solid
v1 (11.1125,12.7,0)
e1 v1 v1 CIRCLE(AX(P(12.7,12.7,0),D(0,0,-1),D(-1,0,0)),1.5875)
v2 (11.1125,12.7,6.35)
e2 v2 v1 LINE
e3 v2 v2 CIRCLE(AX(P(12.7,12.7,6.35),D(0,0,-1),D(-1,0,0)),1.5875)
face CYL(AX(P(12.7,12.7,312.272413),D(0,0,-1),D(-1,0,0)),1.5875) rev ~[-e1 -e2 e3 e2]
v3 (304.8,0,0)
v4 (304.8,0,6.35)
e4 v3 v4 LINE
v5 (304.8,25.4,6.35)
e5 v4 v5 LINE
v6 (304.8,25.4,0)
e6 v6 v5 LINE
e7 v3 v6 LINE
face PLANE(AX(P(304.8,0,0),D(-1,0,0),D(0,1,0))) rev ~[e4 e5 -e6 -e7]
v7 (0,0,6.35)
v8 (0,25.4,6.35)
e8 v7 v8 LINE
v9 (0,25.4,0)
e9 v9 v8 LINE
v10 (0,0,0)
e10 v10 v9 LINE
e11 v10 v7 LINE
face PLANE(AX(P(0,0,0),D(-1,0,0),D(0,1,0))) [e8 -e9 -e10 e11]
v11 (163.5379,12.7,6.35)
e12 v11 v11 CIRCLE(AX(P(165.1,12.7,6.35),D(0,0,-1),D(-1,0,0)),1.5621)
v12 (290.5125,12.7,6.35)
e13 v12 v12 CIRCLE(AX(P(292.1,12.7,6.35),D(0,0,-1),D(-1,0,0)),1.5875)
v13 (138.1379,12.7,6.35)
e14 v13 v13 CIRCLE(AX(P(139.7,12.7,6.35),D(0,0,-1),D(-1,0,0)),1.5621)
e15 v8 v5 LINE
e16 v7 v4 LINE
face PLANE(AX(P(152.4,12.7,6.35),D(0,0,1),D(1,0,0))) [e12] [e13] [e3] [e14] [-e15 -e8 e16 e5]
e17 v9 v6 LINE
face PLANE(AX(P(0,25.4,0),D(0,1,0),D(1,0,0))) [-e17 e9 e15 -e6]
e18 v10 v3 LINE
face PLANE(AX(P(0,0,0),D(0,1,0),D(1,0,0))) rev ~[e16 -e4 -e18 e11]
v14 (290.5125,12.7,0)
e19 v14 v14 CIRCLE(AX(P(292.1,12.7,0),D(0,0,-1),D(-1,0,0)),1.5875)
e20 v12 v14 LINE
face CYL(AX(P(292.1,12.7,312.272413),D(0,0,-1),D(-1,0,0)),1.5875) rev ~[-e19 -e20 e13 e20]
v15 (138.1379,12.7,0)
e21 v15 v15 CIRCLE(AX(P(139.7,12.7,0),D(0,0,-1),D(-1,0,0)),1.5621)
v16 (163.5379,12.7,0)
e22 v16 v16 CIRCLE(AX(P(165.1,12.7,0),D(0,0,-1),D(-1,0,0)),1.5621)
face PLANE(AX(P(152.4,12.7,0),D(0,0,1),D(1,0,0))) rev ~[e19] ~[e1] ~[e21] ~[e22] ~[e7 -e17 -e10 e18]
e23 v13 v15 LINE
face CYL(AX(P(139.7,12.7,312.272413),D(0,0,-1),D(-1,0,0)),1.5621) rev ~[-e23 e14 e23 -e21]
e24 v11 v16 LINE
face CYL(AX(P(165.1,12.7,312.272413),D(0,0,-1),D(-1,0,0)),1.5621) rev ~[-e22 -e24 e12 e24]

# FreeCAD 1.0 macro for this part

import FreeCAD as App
import Part
import Sketcher
Q = App.Units.Quantity

doc = App.newDocument("Part")
body = doc.addObject("PartDesign::Body", "Body")

sketch1 = body.newObject("Sketcher::SketchObject", "Sketch")
sketch1.AttachmentSupport = (doc.getObject("XY_Plane"), [""])
sketch1.MapMode = "FlatFace"
sketch1.addGeometry(Part.LineSegment(App.Vector(0, 25.4, 0), App.Vector(0, 0, 0)), False)
sketch1.addGeometry(Part.LineSegment(App.Vector(0, 0, 0), App.Vector(304.8, 0, 0)), False)
sketch1.addGeometry(Part.LineSegment(App.Vector(304.8, 0, 0), App.Vector(304.8, 25.4, 0)), False)
sketch1.addGeometry(Part.LineSegment(App.Vector(304.8, 25.4, 0), App.Vector(0, 25.4, 0)), False)
sketch1.addConstraint(Sketcher.Constraint("Coincident", 0, 2, 1, 1))
sketch1.addConstraint(Sketcher.Constraint("Coincident", 1, 2, 2, 1))
sketch1.addConstraint(Sketcher.Constraint("Coincident", 2, 2, 3, 1))
sketch1.addConstraint(Sketcher.Constraint("Coincident", 3, 2, 0, 1))
sketch1.addConstraint(Sketcher.Constraint("Vertical", 0))
sketch1.addConstraint(Sketcher.Constraint("Horizontal", 1))
sketch1.addConstraint(Sketcher.Constraint("Vertical", 2))
sketch1.addConstraint(Sketcher.Constraint("Horizontal", 3))
sketch1.addConstraint(Sketcher.Constraint("Coincident", 0, 2, -1, 1))
sketch1.addConstraint(Sketcher.Constraint("DistanceX", 1, 1, 1, 2, Q("12 in")))
sketch1.addConstraint(Sketcher.Constraint("DistanceY", 0, 2, 0, 1, Q("1 in")))
pad1 = body.newObject("PartDesign::Pad", "Pad")
pad1.Profile = sketch1
pad1.Length = Q("0.25 in")

sketch2 = body.newObject("Sketcher::SketchObject", "Sketch001")
sketch2.AttachmentSupport = (doc.getObject("XY_Plane"), [""])
sketch2.MapMode = "FlatFace"
sketch2.AttachmentOffset = App.Placement(App.Vector(0, 0, 0.25 * 25.4), App.Rotation())
sketch2.addGeometry(Part.Circle(App.Vector(139.7, 12.7, 0), App.Vector(0, 0, 1), 1.5621), False)
sketch2.addGeometry(Part.Circle(App.Vector(165.1, 12.7, 0), App.Vector(0, 0, 1), 1.5621), False)
sketch2.addConstraint(Sketcher.Constraint("Equal", 0, 1))
sketch2.addConstraint(Sketcher.Constraint("Horizontal", 0, 3, 1, 3))
sketch2.addConstraint(Sketcher.Constraint("Diameter", 0, Q("0.123 in")))
sketch2.addConstraint(Sketcher.Constraint("DistanceX", 0, 3, 1, 3, Q("1 in")))
sketch2.addConstraint(Sketcher.Constraint("DistanceX", -1, 1, 0, 3, Q("5.5 in")))
sketch2.addConstraint(Sketcher.Constraint("DistanceY", -1, 1, 0, 3, Q("0.5 in")))
doc.recompute()
hole = body.newObject("PartDesign::Hole", "Hole")
hole.Profile = sketch2
hole.ThreadType = "None"
hole.Diameter = Q("0.123 in")
hole.DepthType = "ThroughAll"

sketch3 = body.newObject("Sketcher::SketchObject", "Sketch002")
sketch3.AttachmentSupport = (doc.getObject("XY_Plane"), [""])
sketch3.MapMode = "FlatFace"
sketch3.AttachmentOffset = App.Placement(App.Vector(0, 0, 0.25 * 25.4), App.Rotation())
sketch3.addGeometry(Part.Circle(App.Vector(12.7, 12.7, 0), App.Vector(0, 0, 1), 1.5875), False)
sketch3.addGeometry(Part.Circle(App.Vector(292.1, 12.7, 0), App.Vector(0, 0, 1), 1.5875), False)
sketch3.addConstraint(Sketcher.Constraint("Equal", 0, 1))
sketch3.addConstraint(Sketcher.Constraint("Horizontal", 0, 3, 1, 3))
sketch3.addConstraint(Sketcher.Constraint("Diameter", 0, Q("0.125 in")))
sketch3.addConstraint(Sketcher.Constraint("DistanceX", 0, 3, 1, 3, Q("11 in")))
sketch3.addConstraint(Sketcher.Constraint("DistanceX", -1, 1, 0, 3, Q("0.5 in")))
sketch3.addConstraint(Sketcher.Constraint("DistanceY", -1, 1, 0, 3, Q("0.5 in")))
doc.recompute()
hole2 = body.newObject("PartDesign::Hole", "Hole001")
hole2.Profile = sketch3
hole2.ThreadType = "None"
hole2.Diameter = Q("0.125 in")
hole2.DepthType = "ThroughAll"

doc.recompute()
